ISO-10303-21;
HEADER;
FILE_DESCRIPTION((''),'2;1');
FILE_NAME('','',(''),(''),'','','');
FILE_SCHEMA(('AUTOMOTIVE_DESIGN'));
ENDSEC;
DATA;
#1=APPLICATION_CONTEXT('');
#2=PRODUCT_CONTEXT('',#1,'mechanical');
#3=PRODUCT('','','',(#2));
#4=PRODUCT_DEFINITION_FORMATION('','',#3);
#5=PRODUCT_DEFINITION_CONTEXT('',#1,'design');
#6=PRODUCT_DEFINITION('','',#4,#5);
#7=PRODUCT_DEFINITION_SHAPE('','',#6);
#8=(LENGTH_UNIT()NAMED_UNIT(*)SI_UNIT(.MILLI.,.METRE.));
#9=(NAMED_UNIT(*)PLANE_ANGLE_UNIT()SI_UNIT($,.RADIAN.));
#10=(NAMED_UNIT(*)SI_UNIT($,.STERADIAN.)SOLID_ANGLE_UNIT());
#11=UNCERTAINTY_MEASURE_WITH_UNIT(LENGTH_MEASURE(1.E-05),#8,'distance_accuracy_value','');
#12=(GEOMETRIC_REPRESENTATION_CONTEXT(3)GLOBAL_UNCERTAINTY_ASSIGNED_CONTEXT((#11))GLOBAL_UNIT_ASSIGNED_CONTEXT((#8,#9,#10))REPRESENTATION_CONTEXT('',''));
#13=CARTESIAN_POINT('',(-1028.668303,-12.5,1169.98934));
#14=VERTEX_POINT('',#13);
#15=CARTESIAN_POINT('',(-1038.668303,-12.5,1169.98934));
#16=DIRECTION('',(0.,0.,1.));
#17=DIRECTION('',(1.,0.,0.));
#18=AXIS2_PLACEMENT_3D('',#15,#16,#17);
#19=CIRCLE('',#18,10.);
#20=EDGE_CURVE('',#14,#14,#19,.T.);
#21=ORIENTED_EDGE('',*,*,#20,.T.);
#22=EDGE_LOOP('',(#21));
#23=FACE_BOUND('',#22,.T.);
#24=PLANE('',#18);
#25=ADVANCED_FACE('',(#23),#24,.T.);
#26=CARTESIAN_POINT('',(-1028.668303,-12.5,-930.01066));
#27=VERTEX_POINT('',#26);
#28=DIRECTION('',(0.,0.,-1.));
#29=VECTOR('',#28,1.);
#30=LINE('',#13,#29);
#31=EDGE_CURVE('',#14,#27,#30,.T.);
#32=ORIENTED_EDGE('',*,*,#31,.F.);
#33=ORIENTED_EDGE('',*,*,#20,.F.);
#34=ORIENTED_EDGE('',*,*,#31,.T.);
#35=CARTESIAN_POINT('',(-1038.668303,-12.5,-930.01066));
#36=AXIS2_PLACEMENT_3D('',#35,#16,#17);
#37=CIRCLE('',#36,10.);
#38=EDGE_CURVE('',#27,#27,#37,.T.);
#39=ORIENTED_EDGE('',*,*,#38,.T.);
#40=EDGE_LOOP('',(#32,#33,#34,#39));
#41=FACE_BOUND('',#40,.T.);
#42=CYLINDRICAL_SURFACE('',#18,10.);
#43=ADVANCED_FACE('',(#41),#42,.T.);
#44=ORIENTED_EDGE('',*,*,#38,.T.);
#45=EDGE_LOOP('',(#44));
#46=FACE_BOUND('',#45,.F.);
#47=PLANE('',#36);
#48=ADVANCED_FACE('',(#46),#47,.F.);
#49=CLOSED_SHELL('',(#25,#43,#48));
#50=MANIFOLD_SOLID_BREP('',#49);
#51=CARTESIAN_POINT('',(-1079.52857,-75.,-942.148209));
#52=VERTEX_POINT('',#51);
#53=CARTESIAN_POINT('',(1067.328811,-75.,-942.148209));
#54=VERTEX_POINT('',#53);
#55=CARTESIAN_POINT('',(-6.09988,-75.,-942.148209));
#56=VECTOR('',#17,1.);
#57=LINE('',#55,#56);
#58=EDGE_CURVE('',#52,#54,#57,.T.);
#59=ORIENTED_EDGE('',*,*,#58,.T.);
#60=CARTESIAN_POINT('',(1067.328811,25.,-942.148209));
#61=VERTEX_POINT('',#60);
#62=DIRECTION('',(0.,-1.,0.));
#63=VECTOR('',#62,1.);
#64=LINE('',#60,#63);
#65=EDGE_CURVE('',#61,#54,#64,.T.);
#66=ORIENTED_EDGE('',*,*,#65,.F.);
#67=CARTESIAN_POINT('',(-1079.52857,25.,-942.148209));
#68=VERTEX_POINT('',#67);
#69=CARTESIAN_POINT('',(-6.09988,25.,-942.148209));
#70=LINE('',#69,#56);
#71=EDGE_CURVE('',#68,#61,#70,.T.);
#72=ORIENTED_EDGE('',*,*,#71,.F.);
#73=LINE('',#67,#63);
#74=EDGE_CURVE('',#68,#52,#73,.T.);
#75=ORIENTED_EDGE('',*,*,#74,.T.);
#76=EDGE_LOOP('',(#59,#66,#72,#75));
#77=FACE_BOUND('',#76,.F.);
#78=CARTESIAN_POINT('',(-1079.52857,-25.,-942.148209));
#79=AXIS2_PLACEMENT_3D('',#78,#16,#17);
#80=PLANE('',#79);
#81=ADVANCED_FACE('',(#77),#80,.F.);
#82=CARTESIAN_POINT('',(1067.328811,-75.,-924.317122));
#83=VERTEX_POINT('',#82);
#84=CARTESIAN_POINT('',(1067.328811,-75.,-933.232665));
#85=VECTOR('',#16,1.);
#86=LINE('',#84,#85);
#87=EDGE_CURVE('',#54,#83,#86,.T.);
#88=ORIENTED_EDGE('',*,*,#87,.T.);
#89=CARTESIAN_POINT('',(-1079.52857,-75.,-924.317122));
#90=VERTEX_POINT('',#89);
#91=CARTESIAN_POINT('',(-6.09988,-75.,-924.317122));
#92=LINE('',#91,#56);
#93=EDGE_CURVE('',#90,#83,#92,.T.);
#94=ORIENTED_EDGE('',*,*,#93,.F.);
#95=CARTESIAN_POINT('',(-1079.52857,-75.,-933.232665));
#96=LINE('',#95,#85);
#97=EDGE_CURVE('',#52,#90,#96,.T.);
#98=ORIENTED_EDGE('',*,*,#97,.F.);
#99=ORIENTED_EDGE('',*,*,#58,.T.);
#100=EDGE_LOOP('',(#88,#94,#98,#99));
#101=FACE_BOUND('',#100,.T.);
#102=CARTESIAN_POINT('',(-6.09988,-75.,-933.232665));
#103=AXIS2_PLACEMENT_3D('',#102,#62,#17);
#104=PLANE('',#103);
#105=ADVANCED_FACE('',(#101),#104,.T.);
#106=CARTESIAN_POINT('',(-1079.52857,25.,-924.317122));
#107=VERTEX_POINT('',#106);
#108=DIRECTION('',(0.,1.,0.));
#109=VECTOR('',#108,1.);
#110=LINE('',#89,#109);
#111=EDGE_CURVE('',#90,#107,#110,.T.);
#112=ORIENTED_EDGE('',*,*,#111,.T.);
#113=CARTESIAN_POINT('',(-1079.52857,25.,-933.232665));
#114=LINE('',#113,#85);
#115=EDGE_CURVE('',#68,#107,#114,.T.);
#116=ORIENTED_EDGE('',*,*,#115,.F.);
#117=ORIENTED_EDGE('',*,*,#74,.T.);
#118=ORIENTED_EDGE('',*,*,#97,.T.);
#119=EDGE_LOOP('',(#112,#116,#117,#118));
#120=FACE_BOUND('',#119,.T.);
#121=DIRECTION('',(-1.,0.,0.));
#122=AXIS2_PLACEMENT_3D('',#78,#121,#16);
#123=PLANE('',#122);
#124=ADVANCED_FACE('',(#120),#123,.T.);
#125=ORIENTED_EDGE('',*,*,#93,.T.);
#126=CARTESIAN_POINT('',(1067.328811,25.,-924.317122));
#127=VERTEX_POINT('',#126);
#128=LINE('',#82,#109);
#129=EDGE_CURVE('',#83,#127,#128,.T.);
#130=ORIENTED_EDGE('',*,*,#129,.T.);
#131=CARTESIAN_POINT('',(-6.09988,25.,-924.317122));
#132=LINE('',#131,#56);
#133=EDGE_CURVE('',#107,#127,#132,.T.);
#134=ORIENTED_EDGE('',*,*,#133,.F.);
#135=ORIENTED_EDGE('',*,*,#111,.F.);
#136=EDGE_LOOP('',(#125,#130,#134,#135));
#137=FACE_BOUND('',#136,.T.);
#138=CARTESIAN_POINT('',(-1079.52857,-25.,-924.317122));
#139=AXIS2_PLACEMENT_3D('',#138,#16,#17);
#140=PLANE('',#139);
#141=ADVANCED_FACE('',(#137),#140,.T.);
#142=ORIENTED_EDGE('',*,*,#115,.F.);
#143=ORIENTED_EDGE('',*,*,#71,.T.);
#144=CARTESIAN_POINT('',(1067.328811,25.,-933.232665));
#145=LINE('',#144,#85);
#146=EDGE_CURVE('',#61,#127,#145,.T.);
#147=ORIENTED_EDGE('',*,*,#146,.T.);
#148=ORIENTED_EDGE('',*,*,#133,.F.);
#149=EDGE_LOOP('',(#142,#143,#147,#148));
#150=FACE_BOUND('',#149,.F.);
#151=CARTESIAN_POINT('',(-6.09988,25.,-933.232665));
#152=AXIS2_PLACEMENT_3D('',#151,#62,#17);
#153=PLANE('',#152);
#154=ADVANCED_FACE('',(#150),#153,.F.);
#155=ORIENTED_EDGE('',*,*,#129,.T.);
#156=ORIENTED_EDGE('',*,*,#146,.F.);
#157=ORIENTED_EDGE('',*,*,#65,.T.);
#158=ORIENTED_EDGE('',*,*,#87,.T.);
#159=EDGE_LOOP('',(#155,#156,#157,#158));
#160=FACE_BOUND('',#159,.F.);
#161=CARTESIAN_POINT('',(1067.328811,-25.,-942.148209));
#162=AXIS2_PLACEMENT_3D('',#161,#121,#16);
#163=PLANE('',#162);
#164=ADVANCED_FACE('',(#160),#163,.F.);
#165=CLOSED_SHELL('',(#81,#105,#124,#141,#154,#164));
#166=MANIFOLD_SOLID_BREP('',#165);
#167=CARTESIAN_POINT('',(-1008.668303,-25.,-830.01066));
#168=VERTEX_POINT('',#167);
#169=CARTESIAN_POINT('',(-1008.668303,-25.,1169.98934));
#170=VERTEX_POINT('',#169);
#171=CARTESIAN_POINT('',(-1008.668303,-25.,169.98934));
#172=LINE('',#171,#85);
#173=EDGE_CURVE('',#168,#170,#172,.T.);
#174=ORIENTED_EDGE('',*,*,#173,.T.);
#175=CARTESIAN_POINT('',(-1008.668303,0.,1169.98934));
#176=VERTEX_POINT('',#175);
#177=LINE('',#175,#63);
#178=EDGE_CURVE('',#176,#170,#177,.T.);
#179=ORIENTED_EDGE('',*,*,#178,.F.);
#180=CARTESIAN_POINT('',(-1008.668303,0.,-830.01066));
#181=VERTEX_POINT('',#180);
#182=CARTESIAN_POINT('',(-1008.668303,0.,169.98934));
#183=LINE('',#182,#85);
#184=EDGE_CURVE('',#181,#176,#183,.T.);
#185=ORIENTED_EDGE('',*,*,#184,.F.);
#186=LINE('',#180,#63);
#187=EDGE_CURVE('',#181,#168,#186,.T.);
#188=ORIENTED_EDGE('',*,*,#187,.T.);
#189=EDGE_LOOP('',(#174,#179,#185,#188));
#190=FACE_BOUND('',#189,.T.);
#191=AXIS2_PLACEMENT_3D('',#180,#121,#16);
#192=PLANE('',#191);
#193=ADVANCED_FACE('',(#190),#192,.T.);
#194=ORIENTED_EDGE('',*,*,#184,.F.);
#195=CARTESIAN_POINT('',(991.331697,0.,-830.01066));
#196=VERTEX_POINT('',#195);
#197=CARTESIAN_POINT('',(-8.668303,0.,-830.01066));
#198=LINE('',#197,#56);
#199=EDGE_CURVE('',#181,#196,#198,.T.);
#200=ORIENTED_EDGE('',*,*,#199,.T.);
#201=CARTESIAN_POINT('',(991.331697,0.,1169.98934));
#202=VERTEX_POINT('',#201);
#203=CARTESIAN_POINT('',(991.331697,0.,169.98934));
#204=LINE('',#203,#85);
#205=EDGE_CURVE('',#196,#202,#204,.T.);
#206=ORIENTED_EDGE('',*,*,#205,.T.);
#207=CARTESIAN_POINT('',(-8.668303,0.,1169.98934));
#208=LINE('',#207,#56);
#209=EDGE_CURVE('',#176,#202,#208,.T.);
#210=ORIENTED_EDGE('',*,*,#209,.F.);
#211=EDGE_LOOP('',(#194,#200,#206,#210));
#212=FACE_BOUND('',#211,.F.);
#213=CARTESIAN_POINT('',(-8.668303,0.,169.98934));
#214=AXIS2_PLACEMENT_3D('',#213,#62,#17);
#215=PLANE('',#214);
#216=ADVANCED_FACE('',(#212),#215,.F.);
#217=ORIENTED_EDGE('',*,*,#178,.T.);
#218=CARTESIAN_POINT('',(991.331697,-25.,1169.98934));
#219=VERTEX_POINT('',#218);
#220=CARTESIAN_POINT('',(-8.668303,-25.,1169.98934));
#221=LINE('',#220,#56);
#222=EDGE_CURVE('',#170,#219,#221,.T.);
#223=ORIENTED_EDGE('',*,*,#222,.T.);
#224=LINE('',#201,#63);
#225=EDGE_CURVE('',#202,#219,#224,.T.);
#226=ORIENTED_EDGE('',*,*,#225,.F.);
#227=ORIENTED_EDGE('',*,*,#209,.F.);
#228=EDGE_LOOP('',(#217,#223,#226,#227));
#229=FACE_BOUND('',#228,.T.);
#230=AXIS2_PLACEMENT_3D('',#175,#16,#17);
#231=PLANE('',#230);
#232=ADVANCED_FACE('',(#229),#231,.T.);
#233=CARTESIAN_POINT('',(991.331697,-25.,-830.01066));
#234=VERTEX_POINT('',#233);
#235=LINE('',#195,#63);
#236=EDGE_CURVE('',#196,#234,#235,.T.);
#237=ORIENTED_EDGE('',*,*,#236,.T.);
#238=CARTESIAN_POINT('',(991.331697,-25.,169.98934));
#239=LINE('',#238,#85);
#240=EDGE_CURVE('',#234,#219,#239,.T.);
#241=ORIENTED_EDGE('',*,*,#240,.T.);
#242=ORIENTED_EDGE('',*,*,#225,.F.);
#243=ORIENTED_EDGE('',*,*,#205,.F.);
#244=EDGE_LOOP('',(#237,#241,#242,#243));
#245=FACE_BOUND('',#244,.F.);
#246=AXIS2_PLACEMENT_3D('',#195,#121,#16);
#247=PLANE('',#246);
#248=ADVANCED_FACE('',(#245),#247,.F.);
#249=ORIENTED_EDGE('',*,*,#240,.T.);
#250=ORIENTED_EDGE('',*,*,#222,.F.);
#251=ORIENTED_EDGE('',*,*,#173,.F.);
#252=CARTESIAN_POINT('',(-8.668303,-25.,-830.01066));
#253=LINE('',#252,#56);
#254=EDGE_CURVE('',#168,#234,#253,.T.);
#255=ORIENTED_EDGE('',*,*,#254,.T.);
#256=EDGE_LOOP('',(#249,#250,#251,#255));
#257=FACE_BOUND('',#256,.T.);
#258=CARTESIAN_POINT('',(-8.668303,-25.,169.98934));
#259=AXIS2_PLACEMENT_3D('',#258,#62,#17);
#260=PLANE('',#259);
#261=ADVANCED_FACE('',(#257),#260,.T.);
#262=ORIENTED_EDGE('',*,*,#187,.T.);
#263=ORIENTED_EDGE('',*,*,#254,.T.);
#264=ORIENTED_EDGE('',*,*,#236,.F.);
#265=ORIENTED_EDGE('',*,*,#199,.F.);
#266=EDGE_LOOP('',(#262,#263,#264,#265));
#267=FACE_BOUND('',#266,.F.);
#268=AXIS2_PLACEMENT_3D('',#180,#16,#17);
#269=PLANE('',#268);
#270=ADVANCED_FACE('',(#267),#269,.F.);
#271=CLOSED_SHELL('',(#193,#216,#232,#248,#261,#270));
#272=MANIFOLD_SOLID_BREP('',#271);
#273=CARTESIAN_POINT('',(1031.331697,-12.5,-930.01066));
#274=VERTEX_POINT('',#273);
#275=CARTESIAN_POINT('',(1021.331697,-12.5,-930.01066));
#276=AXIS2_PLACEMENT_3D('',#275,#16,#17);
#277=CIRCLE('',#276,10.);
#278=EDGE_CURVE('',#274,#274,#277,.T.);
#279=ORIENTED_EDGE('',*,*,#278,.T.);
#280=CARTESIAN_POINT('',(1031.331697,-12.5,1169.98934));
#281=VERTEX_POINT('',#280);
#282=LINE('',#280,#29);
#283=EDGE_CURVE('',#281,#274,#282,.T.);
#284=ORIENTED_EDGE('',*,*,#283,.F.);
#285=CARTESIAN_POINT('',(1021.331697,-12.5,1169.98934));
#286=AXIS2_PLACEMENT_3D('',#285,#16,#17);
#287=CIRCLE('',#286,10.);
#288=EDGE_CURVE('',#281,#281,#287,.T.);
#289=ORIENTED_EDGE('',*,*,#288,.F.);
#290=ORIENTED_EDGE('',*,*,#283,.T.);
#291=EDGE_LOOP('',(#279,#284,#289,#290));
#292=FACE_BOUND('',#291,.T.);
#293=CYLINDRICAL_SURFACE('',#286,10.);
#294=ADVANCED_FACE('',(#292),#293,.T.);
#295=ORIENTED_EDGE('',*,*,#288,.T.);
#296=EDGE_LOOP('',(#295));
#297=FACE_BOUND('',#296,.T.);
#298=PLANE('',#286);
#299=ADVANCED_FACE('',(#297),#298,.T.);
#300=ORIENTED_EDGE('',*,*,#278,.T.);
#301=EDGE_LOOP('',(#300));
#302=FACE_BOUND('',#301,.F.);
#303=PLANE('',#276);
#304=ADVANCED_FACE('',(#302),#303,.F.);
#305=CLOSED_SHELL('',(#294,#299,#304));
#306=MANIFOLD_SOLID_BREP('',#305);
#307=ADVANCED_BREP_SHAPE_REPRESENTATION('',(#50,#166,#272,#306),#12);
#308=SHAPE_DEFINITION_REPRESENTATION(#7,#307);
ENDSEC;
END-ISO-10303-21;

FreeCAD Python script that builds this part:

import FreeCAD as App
import Part
import Sketcher
Q = App.Units.Quantity

doc = App.newDocument("Part")
body = doc.addObject("PartDesign::Body", "Body")

# Sketch on XZ plane
sketch1 = body.newObject("Sketcher::SketchObject", "Sketch")
sketch1.AttachmentSupport = (doc.getObject("XZ_Plane"), [""])
sketch1.MapMode = "FlatFace"
sketch1.addGeometry(Part.LineSegment(App.Vector(-1009, 1170, 0), App.Vector(-1009, -830, 0)), False)
sketch1.addGeometry(Part.LineSegment(App.Vector(-1009, -830, 0), App.Vector(991, -830, 0)), False)
sketch1.addGeometry(Part.LineSegment(App.Vector(991, -830, 0), App.Vector(991, 1170, 0)), False)
sketch1.addGeometry(Part.LineSegment(App.Vector(991, 1170, 0), App.Vector(-1009, 1170, 0)), False)
sketch1.addConstraint(Sketcher.Constraint("Coincident", 0, 2, 1, 1))
sketch1.addConstraint(Sketcher.Constraint("Coincident", 1, 2, 2, 1))
sketch1.addConstraint(Sketcher.Constraint("Coincident", 2, 2, 3, 1))
sketch1.addConstraint(Sketcher.Constraint("Coincident", 3, 2, 0, 1))
sketch1.addConstraint(Sketcher.Constraint("Vertical", 0))
sketch1.addConstraint(Sketcher.Constraint("Horizontal", 1))
sketch1.addConstraint(Sketcher.Constraint("Vertical", 2))
sketch1.addConstraint(Sketcher.Constraint("Horizontal", 3))
sketch1.addConstraint(Sketcher.Constraint("Equal", 3, 0))
sketch1.addConstraint(Sketcher.Constraint("DistanceX", 1, 1, 1, 2, Q("2000 mm")))
sketch1.addConstraint(Sketcher.Constraint("DistanceY", 0, 2, -1, 1, Q("830.01066 mm")))
sketch1.addConstraint(Sketcher.Constraint("DistanceX", 0, 2, -1, 1, Q("1008.668303 mm")))
pad1 = body.newObject("PartDesign::Pad", "Pad")
pad1.Profile = sketch1
pad1.Length = 25
body2 = doc.addObject("PartDesign::Body", "Body001")

# Sketch on XY plane
sketch2 = body2.newObject("Sketcher::SketchObject", "Sketch001")
sketch2.AttachmentSupport = (doc.getObject("XY_Plane001"), [""])
sketch2.MapMode = "FlatFace"
sketch2.AttachmentOffset = App.Placement(App.Vector(0, 0, 1169.98934), App.Rotation())
sketch2.addGeometry(Part.Circle(App.Vector(-1039, -12, 0), App.Vector(0, 0, 1), 10), False)
sketch2.addConstraint(Sketcher.Constraint("Diameter", 0, Q("20 mm")))
sketch2.addConstraint(Sketcher.Constraint("DistanceY", 0, 3, -1, 1, Q("12.5 mm")))
sketch2.addConstraint(Sketcher.Constraint("DistanceX", 0, 3, -1, 1, Q("1038.668303 mm")))
pad2 = body2.newObject("PartDesign::Pad", "Pad001")
pad2.Profile = sketch2
pad2.Length = 2100
pad2.Reversed = True
body3 = doc.addObject("PartDesign::Body", "Body002")

# Sketch on XY plane
sketch3 = body3.newObject("Sketcher::SketchObject", "Sketch002")
sketch3.AttachmentSupport = (doc.getObject("XY_Plane002"), [""])
sketch3.MapMode = "FlatFace"
sketch3.AttachmentOffset = App.Placement(App.Vector(0, 0, 1169.98934), App.Rotation())
sketch3.addGeometry(Part.Circle(App.Vector(1021, -12, 0), App.Vector(0, 0, 1), 10), False)
sketch3.addConstraint(Sketcher.Constraint("Diameter", 0, Q("20 mm")))
sketch3.addConstraint(Sketcher.Constraint("DistanceY", 0, 3, -1, 1, Q("12.5 mm")))
sketch3.addConstraint(Sketcher.Constraint("DistanceX", -1, 1, 0, 3, Q("1021.331697 mm")))
pad3 = body3.newObject("PartDesign::Pad", "Pad002")
pad3.Profile = sketch3
pad3.Length = 2100
pad3.Reversed = True
body4 = doc.addObject("PartDesign::Body", "Body003")

# Sketch on XZ plane
sketch4 = body4.newObject("Sketcher::SketchObject", "Sketch003")
sketch4.AttachmentSupport = (doc.getObject("XZ_Plane003"), [""])
sketch4.MapMode = "FlatFace"
sketch4.AttachmentOffset = App.Placement(App.Vector(0, 0, 25), App.Rotation())
sketch4.addGeometry(Part.LineSegment(App.Vector(-1080, -924, 0), App.Vector(-1080, -942, 0)), False)
sketch4.addGeometry(Part.LineSegment(App.Vector(-1080, -942, 0), App.Vector(1067, -942, 0)), False)
sketch4.addGeometry(Part.LineSegment(App.Vector(1067, -942, 0), App.Vector(1067, -924, 0)), False)
sketch4.addGeometry(Part.LineSegment(App.Vector(1067, -924, 0), App.Vector(-1080, -924, 0)), False)
sketch4.addConstraint(Sketcher.Constraint("Coincident", 0, 2, 1, 1))
sketch4.addConstraint(Sketcher.Constraint("Coincident", 1, 2, 2, 1))
sketch4.addConstraint(Sketcher.Constraint("Coincident", 2, 2, 3, 1))
sketch4.addConstraint(Sketcher.Constraint("Coincident", 3, 2, 0, 1))
sketch4.addConstraint(Sketcher.Constraint("Vertical", 0))
sketch4.addConstraint(Sketcher.Constraint("Horizontal", 1))
sketch4.addConstraint(Sketcher.Constraint("Vertical", 2))
sketch4.addConstraint(Sketcher.Constraint("Horizontal", 3))
sketch4.addConstraint(Sketcher.Constraint("DistanceX", 1, 1, 1, 2, Q("2146.857381 mm")))
sketch4.addConstraint(Sketcher.Constraint("DistanceY", 0, 2, 0, 1, Q("17.831087 mm")))
sketch4.addConstraint(Sketcher.Constraint("DistanceX", 0, 2, -1, 1, Q("1079.52857 mm")))
sketch4.addConstraint(Sketcher.Constraint("DistanceY", 0, 2, -1, 1, Q("942.148209 mm")))
pad4 = body4.newObject("PartDesign::Pad", "Pad003")
pad4.Profile = sketch4
pad4.Type = "TwoLengths"
pad4.Length = 50
pad4.Length2 = 50
pad4.Reversed = True

doc.recompute()
